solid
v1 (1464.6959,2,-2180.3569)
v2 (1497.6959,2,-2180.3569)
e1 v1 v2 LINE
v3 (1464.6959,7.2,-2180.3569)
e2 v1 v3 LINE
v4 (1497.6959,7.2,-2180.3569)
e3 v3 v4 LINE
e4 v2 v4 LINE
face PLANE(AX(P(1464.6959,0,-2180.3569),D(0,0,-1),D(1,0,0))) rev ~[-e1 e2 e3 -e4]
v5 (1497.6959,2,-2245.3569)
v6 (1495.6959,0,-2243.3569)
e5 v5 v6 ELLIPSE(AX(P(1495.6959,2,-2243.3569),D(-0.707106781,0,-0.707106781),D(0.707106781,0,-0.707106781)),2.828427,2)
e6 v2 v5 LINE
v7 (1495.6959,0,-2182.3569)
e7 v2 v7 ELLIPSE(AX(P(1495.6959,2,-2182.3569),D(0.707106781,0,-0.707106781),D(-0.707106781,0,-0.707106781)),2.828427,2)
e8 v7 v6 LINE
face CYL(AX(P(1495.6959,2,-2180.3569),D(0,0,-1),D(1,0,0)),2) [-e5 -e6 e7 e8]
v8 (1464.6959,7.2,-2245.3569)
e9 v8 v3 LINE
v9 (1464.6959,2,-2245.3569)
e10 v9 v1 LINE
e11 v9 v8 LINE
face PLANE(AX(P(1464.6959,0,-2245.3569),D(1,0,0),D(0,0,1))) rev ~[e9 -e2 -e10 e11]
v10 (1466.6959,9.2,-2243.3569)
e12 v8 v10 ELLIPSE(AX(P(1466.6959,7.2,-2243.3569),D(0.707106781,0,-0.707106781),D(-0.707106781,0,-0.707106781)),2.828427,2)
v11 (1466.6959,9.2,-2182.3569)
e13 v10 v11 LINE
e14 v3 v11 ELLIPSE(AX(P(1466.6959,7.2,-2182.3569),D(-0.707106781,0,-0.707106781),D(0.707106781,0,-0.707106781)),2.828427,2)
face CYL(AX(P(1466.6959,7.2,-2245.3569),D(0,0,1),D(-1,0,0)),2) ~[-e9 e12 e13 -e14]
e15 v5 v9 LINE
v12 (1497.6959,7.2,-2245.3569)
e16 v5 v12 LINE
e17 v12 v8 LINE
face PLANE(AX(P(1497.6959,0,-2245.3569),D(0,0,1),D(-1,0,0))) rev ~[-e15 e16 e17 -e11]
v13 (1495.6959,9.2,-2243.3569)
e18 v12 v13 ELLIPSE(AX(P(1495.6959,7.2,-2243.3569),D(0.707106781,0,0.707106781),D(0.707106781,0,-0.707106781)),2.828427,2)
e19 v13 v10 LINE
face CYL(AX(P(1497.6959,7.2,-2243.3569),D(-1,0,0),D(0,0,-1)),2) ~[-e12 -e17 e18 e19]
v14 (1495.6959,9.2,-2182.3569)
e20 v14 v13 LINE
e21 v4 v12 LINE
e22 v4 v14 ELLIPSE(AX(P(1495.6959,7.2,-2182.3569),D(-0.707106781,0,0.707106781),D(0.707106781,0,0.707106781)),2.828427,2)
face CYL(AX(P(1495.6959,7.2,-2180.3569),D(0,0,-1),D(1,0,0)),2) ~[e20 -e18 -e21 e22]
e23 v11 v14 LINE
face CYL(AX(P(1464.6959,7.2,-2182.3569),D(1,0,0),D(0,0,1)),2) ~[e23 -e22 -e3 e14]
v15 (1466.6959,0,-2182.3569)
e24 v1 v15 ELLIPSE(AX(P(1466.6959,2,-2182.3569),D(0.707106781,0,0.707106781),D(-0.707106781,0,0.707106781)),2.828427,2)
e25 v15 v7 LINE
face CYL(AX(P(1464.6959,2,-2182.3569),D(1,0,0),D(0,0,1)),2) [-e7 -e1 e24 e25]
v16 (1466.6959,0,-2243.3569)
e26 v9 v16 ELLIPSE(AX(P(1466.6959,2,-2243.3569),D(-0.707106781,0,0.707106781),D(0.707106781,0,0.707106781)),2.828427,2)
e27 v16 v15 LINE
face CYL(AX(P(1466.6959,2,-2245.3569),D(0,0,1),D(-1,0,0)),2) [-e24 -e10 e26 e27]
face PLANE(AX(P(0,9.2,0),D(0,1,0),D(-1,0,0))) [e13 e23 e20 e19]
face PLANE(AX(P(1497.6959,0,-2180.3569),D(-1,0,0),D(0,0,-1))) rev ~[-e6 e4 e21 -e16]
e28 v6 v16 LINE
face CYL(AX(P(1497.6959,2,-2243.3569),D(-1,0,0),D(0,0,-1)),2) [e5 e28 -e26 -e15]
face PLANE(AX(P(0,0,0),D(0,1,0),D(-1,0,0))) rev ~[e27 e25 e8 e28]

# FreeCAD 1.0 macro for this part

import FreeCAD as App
import Part
import Sketcher
from FreeCAD import Vector


def edges_at(feature, points):
    """Names of the edges that pass closest to the given points."""
    edges = feature.Shape.Edges
    near = lambda p: min(range(len(edges)), key=lambda i: edges[i].distToShape(Part.Vertex(*p))[0])
    return sorted({f"Edge{near(p) + 1}" for p in points})

doc = App.newDocument("Part")
body = doc.addObject("PartDesign::Body", "Body")

sketch1 = body.newObject("Sketcher::SketchObject", "Sketch")
sketch1.AttachmentSupport = (doc.getObject("XZ_Plane"), [""])
sketch1.MapMode = "FlatFace"
sketch1.addGeometry(Part.LineSegment(Vector(1464.6959, -2245.3569, 0), Vector(1464.6959, -2180.3569, 0)), False)
sketch1.addGeometry(Part.LineSegment(Vector(1464.6959, -2180.3569, 0), Vector(1497.6959, -2180.3569, 0)), False)
sketch1.addGeometry(Part.LineSegment(Vector(1497.6959, -2180.3569, 0), Vector(1497.6959, -2245.3569, 0)), False)
sketch1.addGeometry(Part.LineSegment(Vector(1497.6959, -2245.3569, 0), Vector(1464.6959, -2245.3569, 0)), False)
sketch1.addConstraint(Sketcher.Constraint("Coincident", 0, 2, 1, 1))
sketch1.addConstraint(Sketcher.Constraint("Coincident", 1, 2, 2, 1))
sketch1.addConstraint(Sketcher.Constraint("Coincident", 2, 2, 3, 1))
sketch1.addConstraint(Sketcher.Constraint("Coincident", 3, 2, 0, 1))
sketch1.addConstraint(Sketcher.Constraint("Vertical", 0))
sketch1.addConstraint(Sketcher.Constraint("Horizontal", 1))
sketch1.addConstraint(Sketcher.Constraint("Vertical", 2))
sketch1.addConstraint(Sketcher.Constraint("Horizontal", 3))
sketch1.addConstraint(Sketcher.Constraint("DistanceX", 1, 1, 1, 2, 33.0))
sketch1.addConstraint(Sketcher.Constraint("DistanceY", 0, 1, 0, 2, 65.0))
sketch1.addConstraint(Sketcher.Constraint("DistanceX", -1, 1, 0, 2, 1464.696))
sketch1.addConstraint(Sketcher.Constraint("DistanceY", 0, 2, -1, 1, 2180.357))
pad1 = body.newObject("PartDesign::Pad", "Pad")
pad1.Profile = sketch1
pad1.Length = 9.2
pad1.Reversed = True
doc.recompute()

fillet = body.newObject("PartDesign::Fillet", "Fillet")
fillet.Base = (pad1, edges_at(pad1, [
    (1481.196, 9.2, -2180.357),
    (1497.696, 9.2, -2212.857),
    (1497.696, 0, -2212.857),
    (1481.196, 9.2, -2245.357),
    (1464.696, 9.2, -2212.857),
    (1464.696, 0, -2212.857),
    (1481.196, 0, -2245.357),
    (1481.196, 0, -2180.357),
]))
fillet.Radius = 2

doc.recompute()
